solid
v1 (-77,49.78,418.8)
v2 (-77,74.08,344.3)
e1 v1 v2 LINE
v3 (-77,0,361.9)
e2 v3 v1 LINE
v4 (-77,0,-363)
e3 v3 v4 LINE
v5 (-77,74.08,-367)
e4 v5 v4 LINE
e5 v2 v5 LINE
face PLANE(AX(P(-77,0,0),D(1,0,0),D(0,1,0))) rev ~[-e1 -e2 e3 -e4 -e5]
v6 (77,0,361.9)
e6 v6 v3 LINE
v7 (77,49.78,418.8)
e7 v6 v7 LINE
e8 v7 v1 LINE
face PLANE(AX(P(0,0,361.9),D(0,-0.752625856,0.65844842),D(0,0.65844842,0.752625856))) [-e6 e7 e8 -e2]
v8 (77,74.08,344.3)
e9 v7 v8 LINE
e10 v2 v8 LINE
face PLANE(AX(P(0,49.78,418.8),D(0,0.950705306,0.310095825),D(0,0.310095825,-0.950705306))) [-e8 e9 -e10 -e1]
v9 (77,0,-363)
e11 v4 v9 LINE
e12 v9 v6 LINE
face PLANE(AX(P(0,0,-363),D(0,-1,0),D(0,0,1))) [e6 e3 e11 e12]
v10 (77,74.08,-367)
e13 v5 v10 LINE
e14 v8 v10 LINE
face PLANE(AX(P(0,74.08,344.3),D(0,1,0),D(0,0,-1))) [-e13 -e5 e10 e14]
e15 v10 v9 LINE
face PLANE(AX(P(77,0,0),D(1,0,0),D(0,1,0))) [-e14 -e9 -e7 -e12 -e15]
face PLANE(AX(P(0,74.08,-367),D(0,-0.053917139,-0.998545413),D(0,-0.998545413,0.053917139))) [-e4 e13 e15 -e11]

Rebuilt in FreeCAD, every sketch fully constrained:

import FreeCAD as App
import Part
import Sketcher
Q = App.Units.Quantity

doc = App.newDocument("Part")
body = doc.addObject("PartDesign::Body", "Body")

# Sketch on YZ plane
sketch1 = body.newObject("Sketcher::SketchObject", "Sketch")
sketch1.AttachmentSupport = (doc.getObject("YZ_Plane"), [""])
sketch1.MapMode = "FlatFace"
sketch1.addGeometry([
    Part.LineSegment(App.Vector(0, 362, 0), App.Vector(0, -363, 0)),  # 0
    Part.LineSegment(App.Vector(0, -363, 0), App.Vector(74, -367, 0)),  # 1
    Part.LineSegment(App.Vector(74, -367, 0), App.Vector(74, 344, 0)),  # 2
    Part.LineSegment(App.Vector(74, 344, 0), App.Vector(50, 419, 0)),  # 3
    Part.LineSegment(App.Vector(50, 419, 0), App.Vector(0, 362, 0)),  # 4
], False)
sketch1.addConstraint([
    Sketcher.Constraint("Coincident", 0, 2, 1, 1),
    Sketcher.Constraint("Coincident", 1, 2, 2, 1),
    Sketcher.Constraint("Coincident", 2, 2, 3, 1),
    Sketcher.Constraint("Coincident", 3, 2, 4, 1),
    Sketcher.Constraint("Coincident", 4, 2, 0, 1),
    Sketcher.Constraint("Vertical", 0),
    Sketcher.Constraint("Vertical", 2),
    Sketcher.Constraint("PointOnObject", 0, 2, -2),
    Sketcher.Constraint("DistanceY", 0, 2, -1, 1, Q("363 mm")),
    Sketcher.Constraint("DistanceY", 1, 2, 0, 2, Q("4 mm")),
    Sketcher.Constraint("DistanceY", -1, 1, 4, 2, Q("361.9 mm")),
    Sketcher.Constraint("DistanceX", 3, 2, 2, 2, Q("24.3 mm")),
    Sketcher.Constraint("DistanceY", 2, 2, 3, 2, Q("74.5 mm")),
    Sketcher.Constraint("DistanceY", 4, 2, 3, 2, Q("56.9 mm")),
    Sketcher.Constraint("DistanceX", -1, 1, 1, 2, Q("74.08 mm")),
])
pad1 = body.newObject("PartDesign::Pad", "Pad")
pad1.Profile = sketch1
pad1.Length = 154
pad1.Midplane = True

doc.recompute()
